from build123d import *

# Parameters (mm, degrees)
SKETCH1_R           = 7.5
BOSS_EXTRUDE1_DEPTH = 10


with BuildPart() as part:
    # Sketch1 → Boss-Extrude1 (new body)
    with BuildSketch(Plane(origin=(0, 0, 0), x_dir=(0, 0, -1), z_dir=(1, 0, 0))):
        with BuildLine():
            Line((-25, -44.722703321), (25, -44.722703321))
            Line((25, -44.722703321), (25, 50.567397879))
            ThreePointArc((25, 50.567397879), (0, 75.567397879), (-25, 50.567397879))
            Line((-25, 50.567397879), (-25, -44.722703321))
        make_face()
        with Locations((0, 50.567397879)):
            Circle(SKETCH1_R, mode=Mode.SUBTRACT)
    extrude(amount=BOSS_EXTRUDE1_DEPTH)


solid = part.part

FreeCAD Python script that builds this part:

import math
import FreeCAD as App
import Part
import Sketcher

V = App.Vector
Q = App.Units.Quantity

doc = App.newDocument("Part")
params = doc.addObject("Spreadsheet::Sheet", "Params")
for row, (alias, value) in enumerate([
    ("sketch1_diameter", "15 mm"),
    ("sketch1_radius", "25 mm"),
    ("pad1_length", "10 mm"),
], start=1):
    params.set(f"A{row}", alias)
    params.set(f"B{row}", "=" + value)
    params.setAlias(f"B{row}", alias)

body = doc.addObject("PartDesign::Body", "Body")

# Sketch on YZ plane
sketch1 = body.newObject("Sketcher::SketchObject", "Sketch")
sketch1.AttachmentSupport = (doc.getObject("YZ_Plane"), [""])
sketch1.MapMode = "FlatFace"
sketch1.addGeometry(Part.LineSegment(V(-45, 25, 0), V(-45, -25, 0)), False)
sketch1.addGeometry(Part.LineSegment(V(-45, -25, 0), V(51, -25, 0)), False)
sketch1.addGeometry(Part.ArcOfCircle(Part.Circle(V(51, 0, 0), V(0, 0, 1), 25), math.radians(-90), math.radians(90)), False)
sketch1.addGeometry(Part.LineSegment(V(51, 25, 0), V(-45, 25, 0)), False)
sketch1.addGeometry(Part.Circle(V(51, 0, 0), V(0, 0, 1), 8), False)
sketch1.addConstraint(Sketcher.Constraint("Coincident", 0, 2, 1, 1))
sketch1.addConstraint(Sketcher.Constraint("Tangent", 1, 2, 2, 1))
sketch1.addConstraint(Sketcher.Constraint("Tangent", 2, 2, 3, 1))
sketch1.addConstraint(Sketcher.Constraint("Coincident", 3, 2, 0, 1))
sketch1.addConstraint(Sketcher.Constraint("Vertical", 0))
sketch1.addConstraint(Sketcher.Constraint("Horizontal", 1))
sketch1.addConstraint(Sketcher.Constraint("Horizontal", 3))
sketch1.addConstraint(Sketcher.Constraint("Coincident", 4, 3, 2, 3))
sketch1.addConstraint(Sketcher.Constraint("PointOnObject", 2, 3, -1))
sketch1.addConstraint(Sketcher.Constraint("Diameter", 4, Q("15 mm")))
sketch1.addConstraint(Sketcher.Constraint("Radius", 2, Q("25 mm")))
sketch1.addConstraint(Sketcher.Constraint("DistanceX", 1, 1, 1, 2, Q("95.290101 mm")))
sketch1.addConstraint(Sketcher.Constraint("DistanceX", -1, 1, 2, 3, Q("50.567398 mm")))
sketch1.setExpression("Constraints[9]", "Params.sketch1_diameter")
sketch1.setExpression("Constraints[10]", "Params.sketch1_radius")
pad1 = body.newObject("PartDesign::Pad", "Pad")
pad1.Profile = sketch1
pad1.setExpression("Length", "Params.pad1_length")

doc.recompute()
